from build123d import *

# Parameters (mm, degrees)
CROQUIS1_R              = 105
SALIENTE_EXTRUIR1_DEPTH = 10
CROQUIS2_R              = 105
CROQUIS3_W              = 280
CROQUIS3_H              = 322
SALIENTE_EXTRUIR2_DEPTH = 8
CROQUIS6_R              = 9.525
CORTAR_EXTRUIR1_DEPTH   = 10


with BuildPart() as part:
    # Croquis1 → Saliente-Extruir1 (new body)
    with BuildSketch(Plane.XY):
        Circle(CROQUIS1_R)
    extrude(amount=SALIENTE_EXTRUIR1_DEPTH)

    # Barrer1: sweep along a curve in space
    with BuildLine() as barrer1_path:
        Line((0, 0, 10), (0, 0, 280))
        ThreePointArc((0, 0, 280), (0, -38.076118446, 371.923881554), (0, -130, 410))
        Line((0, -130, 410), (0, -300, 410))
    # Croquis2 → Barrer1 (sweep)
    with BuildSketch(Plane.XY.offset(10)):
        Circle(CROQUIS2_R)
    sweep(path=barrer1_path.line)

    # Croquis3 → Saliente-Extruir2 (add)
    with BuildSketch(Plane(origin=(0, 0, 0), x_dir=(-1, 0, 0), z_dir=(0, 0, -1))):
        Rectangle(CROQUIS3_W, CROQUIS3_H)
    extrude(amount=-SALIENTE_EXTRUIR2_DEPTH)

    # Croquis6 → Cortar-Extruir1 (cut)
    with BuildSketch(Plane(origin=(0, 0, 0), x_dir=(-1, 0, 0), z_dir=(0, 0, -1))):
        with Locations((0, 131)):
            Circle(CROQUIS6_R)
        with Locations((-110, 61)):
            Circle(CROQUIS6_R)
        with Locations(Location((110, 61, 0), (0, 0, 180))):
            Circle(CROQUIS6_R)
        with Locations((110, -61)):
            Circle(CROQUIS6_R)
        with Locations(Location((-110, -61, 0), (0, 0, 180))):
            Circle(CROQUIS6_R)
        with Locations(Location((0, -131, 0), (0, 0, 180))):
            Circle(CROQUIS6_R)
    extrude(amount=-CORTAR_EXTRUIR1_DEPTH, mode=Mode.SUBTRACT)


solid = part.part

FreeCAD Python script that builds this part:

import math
import FreeCAD as App
import Part
import Sketcher
from FreeCAD import Vector
Q = App.Units.Quantity

doc = App.newDocument("Part")
body = doc.addObject("PartDesign::Body", "Body")

# Sketch on XY plane
sketch1 = body.newObject("Sketcher::SketchObject", "Sketch")
sketch1.AttachmentSupport = (doc.getObject("XY_Plane"), [""])
sketch1.MapMode = "FlatFace"
sketch1.addGeometry(Part.Circle(Vector(0, 0, 0), Vector(0, 0, 1), 105), False)
sketch1.addConstraint(Sketcher.Constraint("Coincident", 0, 3, -1, 1))
sketch1.addConstraint(Sketcher.Constraint("Diameter", 0, Q("210 mm")))
pad1 = body.newObject("PartDesign::Pad", "Pad")
pad1.Profile = sketch1
pad1.Length = 10

# Sketch on XY plane
sketch2 = body.newObject("Sketcher::SketchObject", "Sketch001")
sketch2.AttachmentSupport = (doc.getObject("XY_Plane"), [""])
sketch2.MapMode = "FlatFace"
sketch2.AttachmentOffset = App.Placement(Vector(0, 0, 10), App.Rotation())
sketch2.addGeometry(Part.Circle(Vector(0, 0, 0), Vector(0, 0, 1), 105), False)
sketch2.addConstraint(Sketcher.Constraint("Coincident", 0, 3, -1, 1))
sketch2.addConstraint(Sketcher.Constraint("Diameter", 0, Q("210 mm")))

# Sketch on YZ plane
sketch3 = body.newObject("Sketcher::SketchObject", "Sketch002")
sketch3.AttachmentSupport = (doc.getObject("YZ_Plane"), [""])
sketch3.MapMode = "FlatFace"
sketch3.addGeometry(Part.LineSegment(Vector(0, 10, 0), Vector(0, 280, 0)), False)
sketch3.addGeometry(Part.ArcOfCircle(Part.Circle(Vector(-130, 280, 0), Vector(0, 0, 1), 130), math.radians(0), math.radians(90)), False)
sketch3.addGeometry(Part.LineSegment(Vector(-130, 410, 0), Vector(-300, 410, 0)), False)
sketch3.addConstraint(Sketcher.Constraint("Tangent", 0, 2, 1, 1))
sketch3.addConstraint(Sketcher.Constraint("Tangent", 1, 2, 2, 1))
sketch3.addConstraint(Sketcher.Constraint("Vertical", 0))
sketch3.addConstraint(Sketcher.Constraint("Horizontal", 2))
sketch3.addConstraint(Sketcher.Constraint("PointOnObject", 0, 1, -2))
sketch3.addConstraint(Sketcher.Constraint("Radius", 1, Q("130 mm")))
sketch3.addConstraint(Sketcher.Constraint("DistanceX", 2, 2, 2, 1, Q("170 mm")))
sketch3.addConstraint(Sketcher.Constraint("DistanceY", 0, 1, 0, 2, Q("270 mm")))
sketch3.addConstraint(Sketcher.Constraint("DistanceY", -1, 1, 1, 3, Q("280 mm")))
doc.recompute()

additivepipe = body.newObject("PartDesign::AdditivePipe", "AdditivePipe")
additivepipe.Profile = sketch2
additivepipe.Spine = (sketch3, ["Edge1", "Edge2", "Edge3"])

# Sketch on XY plane
sketch4 = body.newObject("Sketcher::SketchObject", "Sketch003")
sketch4.AttachmentSupport = (doc.getObject("XY_Plane"), [""])
sketch4.MapMode = "FlatFace"
sketch4.addGeometry(Part.LineSegment(Vector(140, 161, 0), Vector(140, -161, 0)), False)
sketch4.addGeometry(Part.LineSegment(Vector(140, -161, 0), Vector(-140, -161, 0)), False)
sketch4.addGeometry(Part.LineSegment(Vector(-140, -161, 0), Vector(-140, 161, 0)), False)
sketch4.addGeometry(Part.LineSegment(Vector(-140, 161, 0), Vector(140, 161, 0)), False)
sketch4.addConstraint(Sketcher.Constraint("Coincident", 0, 2, 1, 1))
sketch4.addConstraint(Sketcher.Constraint("Coincident", 1, 2, 2, 1))
sketch4.addConstraint(Sketcher.Constraint("Coincident", 2, 2, 3, 1))
sketch4.addConstraint(Sketcher.Constraint("Coincident", 3, 2, 0, 1))
sketch4.addConstraint(Sketcher.Constraint("Vertical", 0))
sketch4.addConstraint(Sketcher.Constraint("Horizontal", 1))
sketch4.addConstraint(Sketcher.Constraint("Vertical", 2))
sketch4.addConstraint(Sketcher.Constraint("Horizontal", 3))
sketch4.addConstraint(Sketcher.Constraint("Symmetric", 0, 2, 2, 2, -1, 1))
sketch4.addConstraint(Sketcher.Constraint("DistanceX", 1, 2, 1, 1, Q("280 mm")))
sketch4.addConstraint(Sketcher.Constraint("DistanceY", 0, 2, 0, 1, Q("322 mm")))
pad2 = body.newObject("PartDesign::Pad", "Pad001")
pad2.Profile = sketch4
pad2.Length = 8

# Sketch on XY plane
sketch5 = body.newObject("Sketcher::SketchObject", "Sketch004")
sketch5.AttachmentSupport = (doc.getObject("XY_Plane"), [""])
sketch5.MapMode = "FlatFace"
sketch5.addGeometry(Part.Circle(Vector(0, 131, 0), Vector(0, 0, 1), 9.525), False)
sketch5.addGeometry(Part.Circle(Vector(110, 61, 0), Vector(0, 0, 1), 9.525), False)
sketch5.addGeometry(Part.Circle(Vector(-110, 61, 0), Vector(0, 0, 1), 9.525), False)
sketch5.addGeometry(Part.Circle(Vector(-110, -61, 0), Vector(0, 0, 1), 9.525), False)
sketch5.addGeometry(Part.Circle(Vector(110, -61, 0), Vector(0, 0, 1), 9.525), False)
sketch5.addGeometry(Part.Circle(Vector(0, -131, 0), Vector(0, 0, 1), 9.525), False)
sketch5.addConstraint(Sketcher.Constraint("Equal", 0, 1))
sketch5.addConstraint(Sketcher.Constraint("Equal", 1, 2))
sketch5.addConstraint(Sketcher.Constraint("Equal", 2, 3))
sketch5.addConstraint(Sketcher.Constraint("Equal", 3, 4))
sketch5.addConstraint(Sketcher.Constraint("Equal", 4, 5))
sketch5.addConstraint(Sketcher.Constraint("Symmetric", 1, 3, 3, 3, -1, 1))
sketch5.addConstraint(Sketcher.Constraint("Symmetric", 2, 3, 4, 3, -1, 1))
sketch5.addConstraint(Sketcher.Constraint("Symmetric", 0, 3, 5, 3, -1, 1))
sketch5.addConstraint(Sketcher.Constraint("Symmetric", 1, 3, 2, 3, -2))
sketch5.addConstraint(Sketcher.Constraint("PointOnObject", 0, 3, -2))
sketch5.addConstraint(Sketcher.Constraint("Diameter", 0, Q("19.05 mm")))
sketch5.addConstraint(Sketcher.Constraint("DistanceY", -1, 1, 0, 3, Q("131 mm")))
sketch5.addConstraint(Sketcher.Constraint("DistanceX", -1, 1, 1, 3, Q("110 mm")))
sketch5.addConstraint(Sketcher.Constraint("DistanceY", -1, 1, 1, 3, Q("61 mm")))
pocket1 = body.newObject("PartDesign::Pocket", "Pocket")
pocket1.Profile = sketch5
pocket1.Length = 10
pocket1.Reversed = True

doc.recompute()
